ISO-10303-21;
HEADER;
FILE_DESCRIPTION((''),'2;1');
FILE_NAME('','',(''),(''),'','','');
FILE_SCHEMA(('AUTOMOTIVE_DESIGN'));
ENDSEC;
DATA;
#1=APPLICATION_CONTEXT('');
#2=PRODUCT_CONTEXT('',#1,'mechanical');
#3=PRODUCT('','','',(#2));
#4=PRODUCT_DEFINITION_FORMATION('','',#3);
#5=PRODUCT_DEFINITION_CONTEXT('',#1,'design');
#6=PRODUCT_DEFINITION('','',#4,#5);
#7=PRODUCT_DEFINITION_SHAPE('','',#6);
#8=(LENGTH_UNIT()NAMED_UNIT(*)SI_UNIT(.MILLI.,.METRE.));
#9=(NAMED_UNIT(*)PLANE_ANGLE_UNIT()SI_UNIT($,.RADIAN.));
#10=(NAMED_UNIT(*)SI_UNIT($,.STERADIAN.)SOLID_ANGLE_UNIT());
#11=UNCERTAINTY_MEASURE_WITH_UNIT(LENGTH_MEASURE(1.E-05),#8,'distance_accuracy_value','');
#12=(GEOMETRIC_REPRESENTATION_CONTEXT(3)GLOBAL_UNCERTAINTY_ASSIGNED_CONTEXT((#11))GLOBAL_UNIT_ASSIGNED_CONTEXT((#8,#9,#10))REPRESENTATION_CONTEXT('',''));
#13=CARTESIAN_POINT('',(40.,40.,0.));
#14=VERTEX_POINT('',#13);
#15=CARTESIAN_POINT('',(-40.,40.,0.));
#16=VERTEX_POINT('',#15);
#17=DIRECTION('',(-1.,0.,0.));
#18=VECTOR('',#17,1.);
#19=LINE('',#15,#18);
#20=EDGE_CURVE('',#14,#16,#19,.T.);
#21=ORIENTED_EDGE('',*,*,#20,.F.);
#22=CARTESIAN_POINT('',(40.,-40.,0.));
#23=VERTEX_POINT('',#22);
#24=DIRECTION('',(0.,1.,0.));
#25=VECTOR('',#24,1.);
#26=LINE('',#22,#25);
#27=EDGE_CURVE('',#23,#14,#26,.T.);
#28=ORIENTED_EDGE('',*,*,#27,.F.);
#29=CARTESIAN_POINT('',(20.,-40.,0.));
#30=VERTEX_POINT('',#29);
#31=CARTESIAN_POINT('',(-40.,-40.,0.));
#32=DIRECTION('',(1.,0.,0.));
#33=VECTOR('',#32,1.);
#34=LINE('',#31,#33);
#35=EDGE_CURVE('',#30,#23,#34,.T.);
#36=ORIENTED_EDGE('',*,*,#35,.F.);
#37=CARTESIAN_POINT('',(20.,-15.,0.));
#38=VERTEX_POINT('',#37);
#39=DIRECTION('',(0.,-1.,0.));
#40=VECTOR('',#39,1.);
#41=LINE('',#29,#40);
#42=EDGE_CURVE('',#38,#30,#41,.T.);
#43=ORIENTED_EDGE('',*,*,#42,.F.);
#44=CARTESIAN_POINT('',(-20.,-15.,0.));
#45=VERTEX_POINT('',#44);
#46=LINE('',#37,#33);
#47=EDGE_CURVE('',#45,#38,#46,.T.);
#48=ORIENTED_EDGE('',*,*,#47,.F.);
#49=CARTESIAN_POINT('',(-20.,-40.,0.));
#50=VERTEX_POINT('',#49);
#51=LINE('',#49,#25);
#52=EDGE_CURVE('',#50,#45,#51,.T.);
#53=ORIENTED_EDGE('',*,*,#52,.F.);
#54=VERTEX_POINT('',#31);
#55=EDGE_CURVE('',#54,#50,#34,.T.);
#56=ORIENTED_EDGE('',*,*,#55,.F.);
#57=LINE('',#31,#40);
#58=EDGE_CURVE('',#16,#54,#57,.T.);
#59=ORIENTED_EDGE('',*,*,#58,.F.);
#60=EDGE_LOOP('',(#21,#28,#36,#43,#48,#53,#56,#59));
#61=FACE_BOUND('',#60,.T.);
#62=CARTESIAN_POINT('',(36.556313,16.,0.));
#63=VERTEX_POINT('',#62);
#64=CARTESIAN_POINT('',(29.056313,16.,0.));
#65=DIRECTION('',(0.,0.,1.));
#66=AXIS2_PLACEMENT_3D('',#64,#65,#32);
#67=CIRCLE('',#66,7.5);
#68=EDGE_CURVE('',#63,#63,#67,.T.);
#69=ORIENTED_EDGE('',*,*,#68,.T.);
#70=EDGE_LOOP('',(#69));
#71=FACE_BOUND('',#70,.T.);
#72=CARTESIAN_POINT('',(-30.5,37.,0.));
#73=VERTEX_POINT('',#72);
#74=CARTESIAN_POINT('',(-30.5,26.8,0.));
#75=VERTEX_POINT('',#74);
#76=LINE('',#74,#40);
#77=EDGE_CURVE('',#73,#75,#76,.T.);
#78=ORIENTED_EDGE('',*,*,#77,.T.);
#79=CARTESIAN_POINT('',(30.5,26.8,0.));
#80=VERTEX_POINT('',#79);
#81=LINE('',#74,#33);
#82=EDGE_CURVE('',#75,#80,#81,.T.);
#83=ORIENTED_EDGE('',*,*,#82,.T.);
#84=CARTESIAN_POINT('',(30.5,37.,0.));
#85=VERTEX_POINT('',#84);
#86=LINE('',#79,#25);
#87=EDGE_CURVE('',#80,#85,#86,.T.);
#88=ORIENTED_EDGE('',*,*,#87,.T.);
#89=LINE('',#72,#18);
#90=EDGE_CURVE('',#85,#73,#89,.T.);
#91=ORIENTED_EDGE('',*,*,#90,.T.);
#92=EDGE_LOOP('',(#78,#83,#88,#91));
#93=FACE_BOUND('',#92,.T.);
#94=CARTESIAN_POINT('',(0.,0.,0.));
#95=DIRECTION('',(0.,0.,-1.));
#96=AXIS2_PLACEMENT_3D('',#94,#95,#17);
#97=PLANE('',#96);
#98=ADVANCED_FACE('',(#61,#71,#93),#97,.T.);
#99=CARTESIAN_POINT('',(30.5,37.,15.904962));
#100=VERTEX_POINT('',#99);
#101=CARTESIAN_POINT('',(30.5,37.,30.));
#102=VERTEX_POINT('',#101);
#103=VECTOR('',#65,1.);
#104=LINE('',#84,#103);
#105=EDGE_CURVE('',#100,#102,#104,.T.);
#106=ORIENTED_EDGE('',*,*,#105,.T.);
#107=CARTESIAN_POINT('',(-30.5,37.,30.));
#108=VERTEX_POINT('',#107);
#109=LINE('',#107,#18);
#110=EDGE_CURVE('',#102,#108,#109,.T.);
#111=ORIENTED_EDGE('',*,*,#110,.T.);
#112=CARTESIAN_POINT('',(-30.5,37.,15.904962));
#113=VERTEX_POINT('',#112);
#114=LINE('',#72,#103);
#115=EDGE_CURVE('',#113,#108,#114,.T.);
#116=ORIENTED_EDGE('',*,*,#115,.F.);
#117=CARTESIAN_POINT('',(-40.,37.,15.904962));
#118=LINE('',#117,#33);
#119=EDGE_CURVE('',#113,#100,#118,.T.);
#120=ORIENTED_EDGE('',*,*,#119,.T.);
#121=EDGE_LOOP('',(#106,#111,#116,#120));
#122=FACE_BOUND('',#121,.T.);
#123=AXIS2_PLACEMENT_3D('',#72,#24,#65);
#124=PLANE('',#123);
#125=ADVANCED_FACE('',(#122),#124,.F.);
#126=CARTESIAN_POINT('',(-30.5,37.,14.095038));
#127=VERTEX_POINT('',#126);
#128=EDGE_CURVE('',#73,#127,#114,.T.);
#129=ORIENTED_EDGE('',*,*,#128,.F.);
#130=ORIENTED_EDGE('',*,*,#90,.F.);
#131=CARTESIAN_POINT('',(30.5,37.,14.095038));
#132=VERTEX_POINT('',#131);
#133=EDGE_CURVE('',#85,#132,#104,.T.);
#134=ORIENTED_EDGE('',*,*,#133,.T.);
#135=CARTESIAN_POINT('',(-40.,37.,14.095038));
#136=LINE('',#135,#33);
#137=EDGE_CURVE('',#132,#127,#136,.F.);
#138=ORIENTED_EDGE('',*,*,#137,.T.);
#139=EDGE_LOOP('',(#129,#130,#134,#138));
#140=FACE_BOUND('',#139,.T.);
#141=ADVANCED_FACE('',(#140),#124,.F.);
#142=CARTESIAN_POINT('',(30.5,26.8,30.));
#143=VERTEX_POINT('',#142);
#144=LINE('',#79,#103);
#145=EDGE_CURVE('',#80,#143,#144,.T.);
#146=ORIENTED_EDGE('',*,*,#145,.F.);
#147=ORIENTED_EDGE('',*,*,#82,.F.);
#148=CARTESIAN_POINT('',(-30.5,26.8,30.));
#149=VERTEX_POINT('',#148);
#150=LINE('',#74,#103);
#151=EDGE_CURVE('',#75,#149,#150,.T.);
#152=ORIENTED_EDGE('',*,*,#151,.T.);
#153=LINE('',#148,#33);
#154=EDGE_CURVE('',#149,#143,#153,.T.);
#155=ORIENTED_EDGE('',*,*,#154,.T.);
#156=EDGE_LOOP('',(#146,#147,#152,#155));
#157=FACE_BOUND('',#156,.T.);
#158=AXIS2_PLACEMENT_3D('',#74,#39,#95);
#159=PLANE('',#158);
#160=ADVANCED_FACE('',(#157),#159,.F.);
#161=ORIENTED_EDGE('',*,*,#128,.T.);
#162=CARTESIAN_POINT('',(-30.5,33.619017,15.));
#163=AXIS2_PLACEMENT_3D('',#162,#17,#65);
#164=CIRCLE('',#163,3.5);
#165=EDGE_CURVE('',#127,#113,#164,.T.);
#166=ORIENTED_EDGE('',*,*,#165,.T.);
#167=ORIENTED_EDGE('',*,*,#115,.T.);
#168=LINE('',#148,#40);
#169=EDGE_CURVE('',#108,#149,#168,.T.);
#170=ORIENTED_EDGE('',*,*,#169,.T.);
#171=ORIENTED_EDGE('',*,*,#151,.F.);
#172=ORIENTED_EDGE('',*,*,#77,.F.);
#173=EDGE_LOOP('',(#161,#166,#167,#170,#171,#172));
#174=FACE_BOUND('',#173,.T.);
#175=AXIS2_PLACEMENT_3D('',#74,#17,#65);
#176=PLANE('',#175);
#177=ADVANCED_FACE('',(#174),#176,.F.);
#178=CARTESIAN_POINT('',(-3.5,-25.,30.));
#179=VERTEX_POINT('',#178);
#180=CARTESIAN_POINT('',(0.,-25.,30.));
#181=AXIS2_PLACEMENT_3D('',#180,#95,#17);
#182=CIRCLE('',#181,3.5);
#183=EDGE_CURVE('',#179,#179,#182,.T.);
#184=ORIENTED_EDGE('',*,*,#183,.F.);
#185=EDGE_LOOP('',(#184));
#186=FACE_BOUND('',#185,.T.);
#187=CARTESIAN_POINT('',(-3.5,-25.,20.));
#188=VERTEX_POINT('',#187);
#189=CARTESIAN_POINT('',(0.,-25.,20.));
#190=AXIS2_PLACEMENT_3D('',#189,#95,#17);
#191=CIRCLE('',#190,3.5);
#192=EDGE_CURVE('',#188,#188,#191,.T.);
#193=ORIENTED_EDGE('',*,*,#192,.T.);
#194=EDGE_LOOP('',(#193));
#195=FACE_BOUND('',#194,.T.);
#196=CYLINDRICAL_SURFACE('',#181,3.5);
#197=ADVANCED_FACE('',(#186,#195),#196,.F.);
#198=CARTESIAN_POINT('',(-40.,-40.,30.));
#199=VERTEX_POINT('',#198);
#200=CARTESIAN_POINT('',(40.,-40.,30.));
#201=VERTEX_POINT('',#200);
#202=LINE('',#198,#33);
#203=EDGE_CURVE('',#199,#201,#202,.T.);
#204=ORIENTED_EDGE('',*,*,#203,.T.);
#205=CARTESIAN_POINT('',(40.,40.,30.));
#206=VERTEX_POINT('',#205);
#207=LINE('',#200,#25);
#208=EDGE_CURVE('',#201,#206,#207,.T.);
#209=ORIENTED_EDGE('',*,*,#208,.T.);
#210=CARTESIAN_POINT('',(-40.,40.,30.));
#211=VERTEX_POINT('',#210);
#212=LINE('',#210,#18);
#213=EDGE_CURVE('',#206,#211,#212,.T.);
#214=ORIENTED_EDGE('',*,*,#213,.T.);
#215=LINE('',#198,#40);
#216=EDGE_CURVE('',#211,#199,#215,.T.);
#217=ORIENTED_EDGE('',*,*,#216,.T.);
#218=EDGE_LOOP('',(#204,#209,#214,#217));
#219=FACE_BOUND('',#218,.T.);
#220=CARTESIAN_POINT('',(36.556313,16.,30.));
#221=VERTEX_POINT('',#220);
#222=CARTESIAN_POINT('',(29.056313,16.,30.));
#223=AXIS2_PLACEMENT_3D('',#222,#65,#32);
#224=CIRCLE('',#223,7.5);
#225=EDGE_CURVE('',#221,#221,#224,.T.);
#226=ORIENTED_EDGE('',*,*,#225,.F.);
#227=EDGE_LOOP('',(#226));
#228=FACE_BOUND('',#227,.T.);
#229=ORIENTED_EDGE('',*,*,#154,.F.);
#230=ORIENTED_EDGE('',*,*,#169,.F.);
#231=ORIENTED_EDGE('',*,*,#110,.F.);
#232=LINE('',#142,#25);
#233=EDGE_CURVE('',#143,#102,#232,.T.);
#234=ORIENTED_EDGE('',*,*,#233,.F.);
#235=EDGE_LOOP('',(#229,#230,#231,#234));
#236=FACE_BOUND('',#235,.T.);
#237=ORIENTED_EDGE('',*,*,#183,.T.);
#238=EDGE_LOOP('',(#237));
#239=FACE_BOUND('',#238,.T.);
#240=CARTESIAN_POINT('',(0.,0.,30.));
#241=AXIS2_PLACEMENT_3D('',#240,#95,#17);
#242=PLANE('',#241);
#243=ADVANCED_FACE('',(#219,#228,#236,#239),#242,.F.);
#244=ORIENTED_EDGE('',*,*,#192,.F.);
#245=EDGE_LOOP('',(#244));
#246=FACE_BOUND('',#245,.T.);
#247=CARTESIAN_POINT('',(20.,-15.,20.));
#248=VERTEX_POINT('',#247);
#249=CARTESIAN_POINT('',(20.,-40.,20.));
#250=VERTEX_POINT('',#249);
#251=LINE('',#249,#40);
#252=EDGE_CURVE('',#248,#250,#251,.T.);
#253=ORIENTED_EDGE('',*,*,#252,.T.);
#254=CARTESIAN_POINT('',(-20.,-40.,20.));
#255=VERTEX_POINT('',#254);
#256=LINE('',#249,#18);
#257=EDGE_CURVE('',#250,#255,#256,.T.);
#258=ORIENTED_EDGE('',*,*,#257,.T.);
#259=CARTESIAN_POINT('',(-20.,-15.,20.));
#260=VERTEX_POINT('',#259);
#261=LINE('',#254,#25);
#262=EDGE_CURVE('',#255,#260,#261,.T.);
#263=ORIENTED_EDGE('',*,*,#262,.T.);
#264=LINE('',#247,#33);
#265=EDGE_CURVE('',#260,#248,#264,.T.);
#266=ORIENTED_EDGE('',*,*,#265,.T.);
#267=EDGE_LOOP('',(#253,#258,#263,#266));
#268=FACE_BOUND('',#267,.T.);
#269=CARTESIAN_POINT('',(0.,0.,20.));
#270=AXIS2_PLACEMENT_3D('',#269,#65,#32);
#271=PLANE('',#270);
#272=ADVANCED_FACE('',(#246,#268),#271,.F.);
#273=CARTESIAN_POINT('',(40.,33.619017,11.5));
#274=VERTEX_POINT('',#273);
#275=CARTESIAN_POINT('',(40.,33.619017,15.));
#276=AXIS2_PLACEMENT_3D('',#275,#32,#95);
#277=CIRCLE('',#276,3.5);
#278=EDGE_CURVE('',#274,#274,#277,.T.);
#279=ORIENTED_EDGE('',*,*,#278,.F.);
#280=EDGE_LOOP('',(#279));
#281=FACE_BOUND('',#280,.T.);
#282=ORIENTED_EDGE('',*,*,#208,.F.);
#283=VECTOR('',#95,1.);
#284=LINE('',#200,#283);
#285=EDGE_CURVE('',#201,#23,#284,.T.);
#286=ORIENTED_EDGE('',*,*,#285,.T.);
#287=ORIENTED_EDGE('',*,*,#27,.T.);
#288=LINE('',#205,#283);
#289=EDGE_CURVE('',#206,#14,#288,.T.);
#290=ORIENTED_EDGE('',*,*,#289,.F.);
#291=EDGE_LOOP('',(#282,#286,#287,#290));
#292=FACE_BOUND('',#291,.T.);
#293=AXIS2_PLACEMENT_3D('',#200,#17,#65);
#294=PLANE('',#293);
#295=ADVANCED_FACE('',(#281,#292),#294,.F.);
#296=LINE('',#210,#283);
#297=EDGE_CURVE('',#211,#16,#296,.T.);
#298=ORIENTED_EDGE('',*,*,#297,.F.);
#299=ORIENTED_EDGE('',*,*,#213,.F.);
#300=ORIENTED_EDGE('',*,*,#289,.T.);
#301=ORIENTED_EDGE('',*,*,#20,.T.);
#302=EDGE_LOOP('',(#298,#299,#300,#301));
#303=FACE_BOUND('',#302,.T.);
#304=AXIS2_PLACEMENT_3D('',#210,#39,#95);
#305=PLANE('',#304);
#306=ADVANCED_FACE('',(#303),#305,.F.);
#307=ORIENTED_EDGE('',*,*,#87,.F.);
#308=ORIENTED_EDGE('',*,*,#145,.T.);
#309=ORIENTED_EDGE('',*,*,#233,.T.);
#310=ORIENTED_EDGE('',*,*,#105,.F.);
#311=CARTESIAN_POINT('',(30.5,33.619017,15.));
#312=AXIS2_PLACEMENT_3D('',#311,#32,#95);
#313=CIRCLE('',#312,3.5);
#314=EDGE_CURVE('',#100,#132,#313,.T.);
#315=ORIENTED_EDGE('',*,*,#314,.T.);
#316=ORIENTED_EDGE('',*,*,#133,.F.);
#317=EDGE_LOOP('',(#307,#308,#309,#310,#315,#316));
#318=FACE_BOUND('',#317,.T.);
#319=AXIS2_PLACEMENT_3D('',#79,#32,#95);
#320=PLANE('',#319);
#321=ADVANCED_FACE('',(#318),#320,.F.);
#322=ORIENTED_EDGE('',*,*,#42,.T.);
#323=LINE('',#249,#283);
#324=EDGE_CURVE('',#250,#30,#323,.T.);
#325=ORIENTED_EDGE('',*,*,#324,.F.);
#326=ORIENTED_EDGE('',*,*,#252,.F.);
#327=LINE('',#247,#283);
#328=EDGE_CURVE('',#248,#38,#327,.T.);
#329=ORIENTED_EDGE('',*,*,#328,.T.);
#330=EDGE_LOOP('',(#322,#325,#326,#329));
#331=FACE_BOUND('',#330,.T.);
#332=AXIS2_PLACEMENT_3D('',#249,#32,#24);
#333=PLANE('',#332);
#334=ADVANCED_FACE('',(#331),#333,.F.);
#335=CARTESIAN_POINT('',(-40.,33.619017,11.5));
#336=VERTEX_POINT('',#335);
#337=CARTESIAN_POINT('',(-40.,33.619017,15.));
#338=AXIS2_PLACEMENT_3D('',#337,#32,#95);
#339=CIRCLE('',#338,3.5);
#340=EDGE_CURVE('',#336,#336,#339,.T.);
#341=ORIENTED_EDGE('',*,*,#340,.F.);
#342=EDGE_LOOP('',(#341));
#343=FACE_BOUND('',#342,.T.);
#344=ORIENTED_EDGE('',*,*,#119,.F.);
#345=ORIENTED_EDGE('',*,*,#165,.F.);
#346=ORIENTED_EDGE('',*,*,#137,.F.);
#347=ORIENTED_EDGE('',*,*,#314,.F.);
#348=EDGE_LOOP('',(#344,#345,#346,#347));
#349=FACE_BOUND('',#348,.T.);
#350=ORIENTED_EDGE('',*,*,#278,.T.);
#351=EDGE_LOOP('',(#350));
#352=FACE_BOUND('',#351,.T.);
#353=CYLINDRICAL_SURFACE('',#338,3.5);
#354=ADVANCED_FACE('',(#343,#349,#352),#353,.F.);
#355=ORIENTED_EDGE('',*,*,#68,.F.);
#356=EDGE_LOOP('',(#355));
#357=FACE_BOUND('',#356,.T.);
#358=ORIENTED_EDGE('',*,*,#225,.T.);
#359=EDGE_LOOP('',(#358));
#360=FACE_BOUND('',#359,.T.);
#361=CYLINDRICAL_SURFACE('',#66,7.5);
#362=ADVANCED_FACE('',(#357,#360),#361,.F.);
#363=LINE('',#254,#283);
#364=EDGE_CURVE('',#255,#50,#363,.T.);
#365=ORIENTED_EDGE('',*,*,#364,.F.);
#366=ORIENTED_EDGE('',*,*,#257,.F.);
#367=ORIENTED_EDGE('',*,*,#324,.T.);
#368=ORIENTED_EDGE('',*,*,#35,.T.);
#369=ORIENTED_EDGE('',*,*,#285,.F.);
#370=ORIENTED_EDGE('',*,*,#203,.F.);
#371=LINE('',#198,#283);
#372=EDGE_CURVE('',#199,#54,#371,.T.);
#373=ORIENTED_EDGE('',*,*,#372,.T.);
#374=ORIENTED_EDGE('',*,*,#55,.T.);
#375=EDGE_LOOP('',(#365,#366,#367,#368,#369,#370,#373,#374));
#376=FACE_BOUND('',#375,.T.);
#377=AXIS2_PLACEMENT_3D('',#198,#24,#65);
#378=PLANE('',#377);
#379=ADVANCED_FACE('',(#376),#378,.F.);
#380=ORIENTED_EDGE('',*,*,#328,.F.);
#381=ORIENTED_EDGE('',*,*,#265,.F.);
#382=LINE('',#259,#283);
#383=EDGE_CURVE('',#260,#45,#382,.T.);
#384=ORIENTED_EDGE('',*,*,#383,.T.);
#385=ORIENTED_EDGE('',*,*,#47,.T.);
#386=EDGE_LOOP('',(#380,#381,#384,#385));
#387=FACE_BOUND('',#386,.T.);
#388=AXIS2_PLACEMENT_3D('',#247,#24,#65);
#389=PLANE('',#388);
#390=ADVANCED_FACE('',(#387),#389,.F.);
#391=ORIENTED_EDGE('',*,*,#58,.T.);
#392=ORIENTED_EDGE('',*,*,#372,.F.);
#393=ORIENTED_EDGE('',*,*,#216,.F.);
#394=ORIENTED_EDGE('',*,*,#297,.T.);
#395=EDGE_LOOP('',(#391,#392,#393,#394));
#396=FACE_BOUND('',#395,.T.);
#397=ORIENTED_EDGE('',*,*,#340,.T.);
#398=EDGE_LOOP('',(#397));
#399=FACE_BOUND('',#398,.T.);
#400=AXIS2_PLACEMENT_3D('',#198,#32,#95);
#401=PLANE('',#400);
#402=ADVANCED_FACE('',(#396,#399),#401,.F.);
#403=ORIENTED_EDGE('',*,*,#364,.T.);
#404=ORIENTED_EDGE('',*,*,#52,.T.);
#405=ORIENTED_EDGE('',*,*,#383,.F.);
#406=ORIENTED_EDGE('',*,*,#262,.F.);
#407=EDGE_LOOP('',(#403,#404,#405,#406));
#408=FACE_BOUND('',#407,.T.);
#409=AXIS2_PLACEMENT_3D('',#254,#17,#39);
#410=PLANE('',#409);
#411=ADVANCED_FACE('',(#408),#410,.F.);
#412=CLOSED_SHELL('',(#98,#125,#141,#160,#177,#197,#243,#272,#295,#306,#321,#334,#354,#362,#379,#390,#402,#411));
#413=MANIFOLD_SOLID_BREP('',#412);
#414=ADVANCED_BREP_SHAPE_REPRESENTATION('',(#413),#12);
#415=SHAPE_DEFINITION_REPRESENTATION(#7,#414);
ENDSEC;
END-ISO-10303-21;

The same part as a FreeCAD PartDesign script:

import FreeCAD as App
import Part
import Sketcher

doc = App.newDocument("Part")
body = doc.addObject("PartDesign::Body", "Body")

sketch1 = doc.addObject("Sketcher::SketchObject", "Sketch")
body.addObject(sketch1)
sketch1.AttachmentSupport = (doc.XY_Plane, [""])
sketch1.MapMode = "FlatFace"
sketch1.addGeometry([
    Part.LineSegment(App.Vector(-40, 40, 0), App.Vector(-40, -40, 0)),
    Part.LineSegment(App.Vector(-40, -40, 0), App.Vector(40, -40, 0)),
    Part.LineSegment(App.Vector(40, -40, 0), App.Vector(40, 40, 0)),
    Part.LineSegment(App.Vector(40, 40, 0), App.Vector(-40, 40, 0)),
], False)
sketch1.addConstraint([
    Sketcher.Constraint("Coincident", 0, 2, 1, 1),
    Sketcher.Constraint("Coincident", 1, 2, 2, 1),
    Sketcher.Constraint("Coincident", 2, 2, 3, 1),
    Sketcher.Constraint("Coincident", 3, 2, 0, 1),
    Sketcher.Constraint("Vertical", 0),
    Sketcher.Constraint("Horizontal", 1),
    Sketcher.Constraint("Vertical", 2),
    Sketcher.Constraint("Horizontal", 3),
    Sketcher.Constraint("Symmetric", 0, 2, 2, 2, -1, 1),
    Sketcher.Constraint("Equal", 3, 0),
    Sketcher.Constraint("DistanceX", 1, 1, 1, 2, 80.0),
])
pad1 = doc.addObject("PartDesign::Pad", "Pad")
body.addObject(pad1)
pad1.Profile = sketch1
pad1.Length = 30

sketch2 = doc.addObject("Sketcher::SketchObject", "Sketch001")
body.addObject(sketch2)
sketch2.AttachmentSupport = (doc.XY_Plane, [""])
sketch2.MapMode = "FlatFace"
sketch2.AttachmentOffset = App.Placement(App.Vector(0, 0, 30), App.Rotation())
sketch2.addGeometry([
    Part.LineSegment(App.Vector(-30.5, 37, 0), App.Vector(-30.5, 26.8, 0)),
    Part.LineSegment(App.Vector(-30.5, 26.8, 0), App.Vector(30.5, 26.8, 0)),
    Part.LineSegment(App.Vector(30.5, 26.8, 0), App.Vector(30.5, 37, 0)),
    Part.LineSegment(App.Vector(30.5, 37, 0), App.Vector(-30.5, 37, 0)),
], False)
sketch2.addConstraint([
    Sketcher.Constraint("Coincident", 0, 2, 1, 1),
    Sketcher.Constraint("Coincident", 1, 2, 2, 1),
    Sketcher.Constraint("Coincident", 2, 2, 3, 1),
    Sketcher.Constraint("Coincident", 3, 2, 0, 1),
    Sketcher.Constraint("Vertical", 0),
    Sketcher.Constraint("Horizontal", 1),
    Sketcher.Constraint("Vertical", 2),
    Sketcher.Constraint("Horizontal", 3),
    Sketcher.Constraint("DistanceX", 1, 1, 1, 2, 61.0),
    Sketcher.Constraint("DistanceY", 0, 2, 0, 1, 10.2),
    Sketcher.Constraint("DistanceY", -1, 1, 2, 2, 37.0),
    Sketcher.Constraint("DistanceX", 0, 2, -1, 1, 30.5),
])
pocket1 = doc.addObject("PartDesign::Pocket", "Pocket")
body.addObject(pocket1)
pocket1.Profile = sketch2
pocket1.Type = "ThroughAll"

sketch3 = doc.addObject("Sketcher::SketchObject", "Sketch002")
body.addObject(sketch3)
sketch3.AttachmentSupport = (doc.XY_Plane, [""])
sketch3.MapMode = "FlatFace"
sketch3.addGeometry([
    Part.LineSegment(App.Vector(20, -15, 0), App.Vector(20, -40, 0)),
    Part.LineSegment(App.Vector(20, -40, 0), App.Vector(-20, -40, 0)),
    Part.LineSegment(App.Vector(-20, -40, 0), App.Vector(-20, -15, 0)),
    Part.LineSegment(App.Vector(-20, -15, 0), App.Vector(20, -15, 0)),
], False)
sketch3.addConstraint([
    Sketcher.Constraint("Coincident", 0, 2, 1, 1),
    Sketcher.Constraint("Coincident", 1, 2, 2, 1),
    Sketcher.Constraint("Coincident", 2, 2, 3, 1),
    Sketcher.Constraint("Coincident", 3, 2, 0, 1),
    Sketcher.Constraint("Vertical", 0),
    Sketcher.Constraint("Horizontal", 1),
    Sketcher.Constraint("Vertical", 2),
    Sketcher.Constraint("Horizontal", 3),
    Sketcher.Constraint("DistanceX", 1, 2, 1, 1, 40.0),
    Sketcher.Constraint("DistanceY", 0, 2, 0, 1, 25.0),
    Sketcher.Constraint("DistanceX", -1, 1, 0, 2, 20.0),
    Sketcher.Constraint("DistanceY", 0, 2, -1, 1, 40.0),
])
pocket2 = doc.addObject("PartDesign::Pocket", "Pocket001")
body.addObject(pocket2)
pocket2.Profile = sketch3
pocket2.Length = 20
pocket2.Reversed = True

sketch4 = doc.addObject("Sketcher::SketchObject", "Sketch003")
body.addObject(sketch4)
sketch4.AttachmentSupport = (doc.XY_Plane, [""])
sketch4.MapMode = "FlatFace"
sketch4.AttachmentOffset = App.Placement(App.Vector(0, 0, 20), App.Rotation())
sketch4.addGeometry(Part.Circle(App.Vector(0, -25, 0), App.Vector(0, 0, 1), 3.5), False)
sketch4.addConstraint([
    Sketcher.Constraint("PointOnObject", 0, 3, -2),
    Sketcher.Constraint("Diameter", 0, 7.0),
    Sketcher.Constraint("DistanceY", 0, 3, -1, 1, 25.0),
])
pocket3 = doc.addObject("PartDesign::Pocket", "Pocket002")
body.addObject(pocket3)
pocket3.Profile = sketch4
pocket3.Type = "ThroughAll"
pocket3.Reversed = True

sketch5 = doc.addObject("Sketcher::SketchObject", "Sketch004")
body.addObject(sketch5)
sketch5.AttachmentSupport = (doc.YZ_Plane, [""])
sketch5.MapMode = "FlatFace"
sketch5.AttachmentOffset = App.Placement(App.Vector(0, 0, 40), App.Rotation())
sketch5.addGeometry(Part.Circle(App.Vector(33.619017, 15, 0), App.Vector(0, 0, 1), 3.5), False)
sketch5.addConstraint([
    Sketcher.Constraint("Diameter", 0, 7.0),
    Sketcher.Constraint("DistanceY", -1, 1, 0, 3, 15.0),
    Sketcher.Constraint("DistanceX", -1, 1, 0, 3, 33.619017),
])
pocket4 = doc.addObject("PartDesign::Pocket", "Pocket003")
body.addObject(pocket4)
pocket4.Profile = sketch5
pocket4.Type = "ThroughAll"

sketch6 = doc.addObject("Sketcher::SketchObject", "Sketch005")
body.addObject(sketch6)
sketch6.AttachmentSupport = (doc.XY_Plane, [""])
sketch6.MapMode = "FlatFace"
sketch6.AttachmentOffset = App.Placement(App.Vector(0, 0, 30), App.Rotation())
sketch6.addGeometry(Part.Circle(App.Vector(29.056313, 16, 0), App.Vector(0, 0, 1), 7.5), False)
sketch6.addConstraint([
    Sketcher.Constraint("Diameter", 0, 15.0),
    Sketcher.Constraint("DistanceY", -1, 1, 0, 3, 16.0),
    Sketcher.Constraint("DistanceX", -1, 1, 0, 3, 29.056313),
])
pocket5 = doc.addObject("PartDesign::Pocket", "Pocket004")
body.addObject(pocket5)
pocket5.Profile = sketch6
pocket5.Type = "ThroughAll"

doc.recompute()
